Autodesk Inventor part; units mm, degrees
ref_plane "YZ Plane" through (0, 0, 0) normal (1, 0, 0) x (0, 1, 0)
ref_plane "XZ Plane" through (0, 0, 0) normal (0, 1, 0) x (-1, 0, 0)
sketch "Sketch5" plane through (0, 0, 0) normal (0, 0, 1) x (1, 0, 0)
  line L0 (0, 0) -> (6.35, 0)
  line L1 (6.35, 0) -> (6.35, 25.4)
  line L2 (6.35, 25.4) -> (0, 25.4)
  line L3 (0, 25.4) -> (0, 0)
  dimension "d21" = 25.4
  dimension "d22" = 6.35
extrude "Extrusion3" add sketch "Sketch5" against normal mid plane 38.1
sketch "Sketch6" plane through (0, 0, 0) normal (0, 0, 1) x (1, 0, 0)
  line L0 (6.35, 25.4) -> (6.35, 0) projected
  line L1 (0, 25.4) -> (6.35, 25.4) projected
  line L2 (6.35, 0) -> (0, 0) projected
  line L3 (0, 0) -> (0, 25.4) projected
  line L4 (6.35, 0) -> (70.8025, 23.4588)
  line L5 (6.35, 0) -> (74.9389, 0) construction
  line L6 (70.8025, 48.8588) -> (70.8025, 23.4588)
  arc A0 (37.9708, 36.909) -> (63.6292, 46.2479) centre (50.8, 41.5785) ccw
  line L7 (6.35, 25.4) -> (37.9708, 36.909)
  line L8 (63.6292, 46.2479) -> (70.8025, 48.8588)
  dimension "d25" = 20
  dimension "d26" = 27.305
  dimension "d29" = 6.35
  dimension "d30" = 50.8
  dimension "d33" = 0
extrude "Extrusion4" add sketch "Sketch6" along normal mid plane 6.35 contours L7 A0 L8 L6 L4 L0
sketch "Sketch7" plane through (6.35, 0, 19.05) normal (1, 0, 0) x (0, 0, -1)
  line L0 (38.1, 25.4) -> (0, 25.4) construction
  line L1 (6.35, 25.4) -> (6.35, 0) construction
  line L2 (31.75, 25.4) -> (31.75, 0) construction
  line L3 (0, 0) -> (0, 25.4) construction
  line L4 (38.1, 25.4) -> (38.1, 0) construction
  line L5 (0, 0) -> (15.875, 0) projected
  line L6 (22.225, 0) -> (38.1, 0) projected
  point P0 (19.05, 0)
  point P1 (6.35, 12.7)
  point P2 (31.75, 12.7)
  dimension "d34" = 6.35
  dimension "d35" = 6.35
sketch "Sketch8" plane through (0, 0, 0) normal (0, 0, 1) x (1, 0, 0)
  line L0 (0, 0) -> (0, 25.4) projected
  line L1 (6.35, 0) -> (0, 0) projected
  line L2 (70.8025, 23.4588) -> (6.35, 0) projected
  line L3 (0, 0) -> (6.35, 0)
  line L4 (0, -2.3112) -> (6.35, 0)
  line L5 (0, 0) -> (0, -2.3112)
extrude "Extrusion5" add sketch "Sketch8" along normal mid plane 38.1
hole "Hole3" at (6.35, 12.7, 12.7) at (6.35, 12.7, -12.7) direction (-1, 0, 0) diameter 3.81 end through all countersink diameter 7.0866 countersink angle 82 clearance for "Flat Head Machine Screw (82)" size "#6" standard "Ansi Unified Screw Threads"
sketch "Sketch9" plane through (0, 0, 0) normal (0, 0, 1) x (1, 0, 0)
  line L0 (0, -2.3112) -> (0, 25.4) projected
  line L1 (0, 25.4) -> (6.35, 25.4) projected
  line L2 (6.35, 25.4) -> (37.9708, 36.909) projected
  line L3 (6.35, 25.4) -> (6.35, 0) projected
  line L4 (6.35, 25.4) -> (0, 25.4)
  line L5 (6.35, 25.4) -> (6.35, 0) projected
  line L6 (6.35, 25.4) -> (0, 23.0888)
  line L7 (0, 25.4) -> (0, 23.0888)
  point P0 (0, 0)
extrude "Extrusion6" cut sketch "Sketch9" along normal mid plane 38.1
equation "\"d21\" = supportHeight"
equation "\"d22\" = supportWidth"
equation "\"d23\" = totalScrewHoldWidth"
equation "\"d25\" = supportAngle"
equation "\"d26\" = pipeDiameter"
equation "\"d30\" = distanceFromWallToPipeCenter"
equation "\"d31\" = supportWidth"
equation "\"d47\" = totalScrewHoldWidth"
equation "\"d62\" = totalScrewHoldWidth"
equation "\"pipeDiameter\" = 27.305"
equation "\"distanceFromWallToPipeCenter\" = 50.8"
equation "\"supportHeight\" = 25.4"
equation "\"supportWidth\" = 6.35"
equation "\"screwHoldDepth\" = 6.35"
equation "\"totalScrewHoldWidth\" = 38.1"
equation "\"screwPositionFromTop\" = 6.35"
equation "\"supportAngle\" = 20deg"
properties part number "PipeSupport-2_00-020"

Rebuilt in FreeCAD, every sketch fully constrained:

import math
import FreeCAD as App
import Part
import Sketcher
Q = App.Units.Quantity


def add_polygon(sketch, points):
    """Adds a closed chain of lines whose ends are joined by coincident constraints."""
    first, n = sketch.GeometryCount, len(points)
    for a, b in zip(points, points[1:] + points[:1]):
        sketch.addGeometry(Part.LineSegment(App.Vector(*a, 0), App.Vector(*b, 0)), False)
    for i in range(n):
        sketch.addConstraint(Sketcher.Constraint("Coincident", first + i, 2, first + (i + 1) % n, 1))

doc = App.newDocument("Part")
body = doc.addObject("PartDesign::Body", "Body")

# Sketch on XY plane
sketch1 = body.newObject("Sketcher::SketchObject", "Sketch")
sketch1.AttachmentSupport = (doc.getObject("XY_Plane"), [""])
sketch1.MapMode = "FlatFace"
add_polygon(sketch1, [(0, 25), (0, 0), (6, 0), (6, 25)])  # lines 0-3
sketch1.addConstraint([
    Sketcher.Constraint("Vertical", 0),
    Sketcher.Constraint("Horizontal", 1),
    Sketcher.Constraint("Vertical", 2),
    Sketcher.Constraint("Horizontal", 3),
    Sketcher.Constraint("Coincident", 0, 2, -1, 1),
    Sketcher.Constraint("DistanceY", 0, 2, 0, 1, Q("1 in")),
    Sketcher.Constraint("DistanceX", 1, 1, 1, 2, Q("0.25 in")),
])
pad1 = body.newObject("PartDesign::Pad", "Pad")
pad1.Profile = sketch1
pad1.Length = Q("1.5 in")
pad1.Midplane = True

# Sketch on XY plane
sketch2 = body.newObject("Sketcher::SketchObject", "Sketch001")
sketch2.AttachmentSupport = (doc.getObject("XY_Plane"), [""])
sketch2.MapMode = "FlatFace"
sketch2.addGeometry([
    Part.LineSegment(App.Vector(38, 37, 0), App.Vector(6, 25, 0)),  # 0
    Part.LineSegment(App.Vector(6, 25, 0), App.Vector(6, 0, 0)),  # 1
    Part.LineSegment(App.Vector(6, 0, 0), App.Vector(71, 23, 0)),  # 2
    Part.LineSegment(App.Vector(71, 23, 0), App.Vector(71, 49, 0)),  # 3
    Part.LineSegment(App.Vector(71, 49, 0), App.Vector(64, 46, 0)),  # 4
    Part.ArcOfCircle(Part.Circle(App.Vector(51, 42, 0), App.Vector(0, 0, 1), 14), math.radians(-160), math.radians(20)),  # 5
], False)
sketch2.addConstraint([
    Sketcher.Constraint("Coincident", 0, 2, 1, 1),
    Sketcher.Constraint("Coincident", 1, 2, 2, 1),
    Sketcher.Constraint("Coincident", 2, 2, 3, 1),
    Sketcher.Constraint("Coincident", 3, 2, 4, 1),
    Sketcher.Constraint("Coincident", 4, 2, 5, 2),
    Sketcher.Constraint("Coincident", 5, 1, 0, 1),
    Sketcher.Constraint("Vertical", 1),
    Sketcher.Constraint("Vertical", 3),
    Sketcher.Constraint("PointOnObject", 1, 2, -1),
    Sketcher.Constraint("Parallel", 0, 2),
    Sketcher.Constraint("Parallel", 2, 4),
    Sketcher.Constraint("Equal", 1, 3),
    Sketcher.Constraint("DistanceX", -1, 1, 5, 3, Q("2 in")),
    Sketcher.Constraint("Angle", 2, Q("20 deg")),
    Sketcher.Constraint("Radius", 5, Q("0.5375 in")),
    Sketcher.Constraint("DistanceY", 1, 2, 1, 1, Q("1 in")),
    Sketcher.Constraint("DistanceX", -1, 1, 0, 2, Q("0.25 in")),
    Sketcher.Constraint("Distance", 0, Q("1.3248 in")),
    Sketcher.Constraint("DistanceX", -1, 1, 2, 2, Q("2.7875 in")),
])
pad2 = body.newObject("PartDesign::Pad", "Pad001")
pad2.Profile = sketch2
pad2.Length = Q("0.25 in")
pad2.Midplane = True

# Sketch on XY plane
sketch3 = body.newObject("Sketcher::SketchObject", "Sketch002")
sketch3.AttachmentSupport = (doc.getObject("XY_Plane"), [""])
sketch3.MapMode = "FlatFace"
add_polygon(sketch3, [(0, -2.3), (6.3, 0), (0, 0)])  # lines 0-2
sketch3.addConstraint([
    Sketcher.Constraint("Horizontal", 1),
    Sketcher.Constraint("Vertical", 2),
    Sketcher.Constraint("Coincident", 1, 2, -1, 1),
    Sketcher.Constraint("Angle", 0, Q("20 deg")),
    Sketcher.Constraint("DistanceX", 1, 2, 1, 1, Q("0.25 in")),
])
pad3 = body.newObject("PartDesign::Pad", "Pad002")
pad3.Profile = sketch3
pad3.Length = Q("1.5 in")
pad3.Midplane = True

# Sketch on YZ plane
sketch4 = body.newObject("Sketcher::SketchObject", "Sketch003")
sketch4.AttachmentSupport = (doc.getObject("YZ_Plane"), [""])
sketch4.MapMode = "FlatFace"
sketch4.AttachmentOffset = App.Placement(App.Vector(0, 0, 0.25 * 25.4), App.Rotation())
sketch4.addGeometry([
    Part.Circle(App.Vector(12.7, 12.7, 0), App.Vector(0, 0, 1), 1.9),
    Part.Circle(App.Vector(12.7, -12.7, 0), App.Vector(0, 0, 1), 1.9),
], False)
sketch4.addConstraint([
    Sketcher.Constraint("Equal", 0, 1),
    Sketcher.Constraint("Symmetric", 0, 3, 1, 3, -1),
    Sketcher.Constraint("Diameter", 0, Q("0.15 in")),
    Sketcher.Constraint("DistanceY", 1, 3, 0, 3, Q("1 in")),
    Sketcher.Constraint("DistanceX", -1, 1, 0, 3, Q("0.5 in")),
])
doc.recompute()
hole = body.newObject("PartDesign::Hole", "Hole")
hole.Profile = sketch4
hole.ThreadType = "None"
hole.Diameter = Q("0.15 in")
hole.DepthType = "ThroughAll"
hole.HoleCutType = "Countersink"
hole.HoleCutDiameter = Q("0.279 in")
hole.HoleCutCountersinkAngle = 82

# Sketch on XY plane
sketch5 = body.newObject("Sketcher::SketchObject", "Sketch004")
sketch5.AttachmentSupport = (doc.getObject("XY_Plane"), [""])
sketch5.MapMode = "FlatFace"
add_polygon(sketch5, [(0, 25.4), (0, 23.1), (6.3, 25.4)])  # lines 0-2
sketch5.addConstraint([
    Sketcher.Constraint("Vertical", 0),
    Sketcher.Constraint("Horizontal", 2),
    Sketcher.Constraint("PointOnObject", 0, 2, -2),
    Sketcher.Constraint("DistanceY", -1, 1, 1, 2, Q("1 in")),
    Sketcher.Constraint("Angle", 1, Q("20 deg")),
    Sketcher.Constraint("DistanceX", 2, 2, 2, 1, Q("0.25 in")),
])
pocket1 = body.newObject("PartDesign::Pocket", "Pocket")
pocket1.Profile = sketch5
pocket1.Length = Q("1.5 in")
pocket1.Midplane = True

doc.recompute()
